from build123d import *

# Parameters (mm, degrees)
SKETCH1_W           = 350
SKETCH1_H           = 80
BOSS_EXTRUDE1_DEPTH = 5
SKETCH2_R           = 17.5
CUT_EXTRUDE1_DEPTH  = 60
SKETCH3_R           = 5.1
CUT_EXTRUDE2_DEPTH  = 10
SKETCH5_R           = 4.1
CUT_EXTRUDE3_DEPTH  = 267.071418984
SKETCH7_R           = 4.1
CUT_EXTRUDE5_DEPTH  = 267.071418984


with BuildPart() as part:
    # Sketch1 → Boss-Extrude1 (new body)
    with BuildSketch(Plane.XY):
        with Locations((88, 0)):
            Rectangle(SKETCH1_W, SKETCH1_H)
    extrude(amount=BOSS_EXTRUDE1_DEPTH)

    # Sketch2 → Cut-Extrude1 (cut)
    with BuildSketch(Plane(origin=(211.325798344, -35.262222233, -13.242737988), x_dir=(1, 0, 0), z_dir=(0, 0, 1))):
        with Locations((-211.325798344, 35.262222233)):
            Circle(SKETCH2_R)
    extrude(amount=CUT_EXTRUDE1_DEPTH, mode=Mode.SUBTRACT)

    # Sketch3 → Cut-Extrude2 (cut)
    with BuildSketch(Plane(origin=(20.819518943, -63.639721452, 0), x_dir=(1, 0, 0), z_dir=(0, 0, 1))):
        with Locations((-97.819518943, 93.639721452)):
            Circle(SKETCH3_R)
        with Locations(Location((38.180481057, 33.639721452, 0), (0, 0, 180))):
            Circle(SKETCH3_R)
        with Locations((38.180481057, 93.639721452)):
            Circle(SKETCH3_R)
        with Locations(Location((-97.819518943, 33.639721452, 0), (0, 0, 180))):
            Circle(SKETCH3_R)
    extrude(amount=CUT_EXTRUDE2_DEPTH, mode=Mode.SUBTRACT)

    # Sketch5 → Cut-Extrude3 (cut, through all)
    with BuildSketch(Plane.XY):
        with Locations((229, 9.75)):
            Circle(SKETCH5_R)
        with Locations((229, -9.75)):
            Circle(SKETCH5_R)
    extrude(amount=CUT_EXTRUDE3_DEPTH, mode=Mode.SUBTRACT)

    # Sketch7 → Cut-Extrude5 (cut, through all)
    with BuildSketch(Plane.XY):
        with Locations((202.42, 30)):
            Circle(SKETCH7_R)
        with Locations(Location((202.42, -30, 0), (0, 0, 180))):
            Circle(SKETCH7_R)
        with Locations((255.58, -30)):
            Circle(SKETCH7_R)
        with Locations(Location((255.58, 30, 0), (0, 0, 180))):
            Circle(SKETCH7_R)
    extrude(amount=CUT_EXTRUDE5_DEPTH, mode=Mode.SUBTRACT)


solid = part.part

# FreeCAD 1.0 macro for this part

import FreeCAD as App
import Part
import Sketcher

V = App.Vector
Q = App.Units.Quantity

doc = App.newDocument("Part")
body = doc.addObject("PartDesign::Body", "Body")

sketch1 = body.newObject("Sketcher::SketchObject", "Sketch")
sketch1.AttachmentSupport = (doc.getObject("XY_Plane"), [""])
sketch1.MapMode = "FlatFace"
sketch1.addGeometry(Part.LineSegment(V(-87, 40, 0), V(-87, -40, 0)), False)
sketch1.addGeometry(Part.LineSegment(V(-87, -40, 0), V(263, -40, 0)), False)
sketch1.addGeometry(Part.LineSegment(V(263, -40, 0), V(263, 40, 0)), False)
sketch1.addGeometry(Part.LineSegment(V(263, 40, 0), V(-87, 40, 0)), False)
sketch1.addConstraint(Sketcher.Constraint("Coincident", 0, 2, 1, 1))
sketch1.addConstraint(Sketcher.Constraint("Coincident", 1, 2, 2, 1))
sketch1.addConstraint(Sketcher.Constraint("Coincident", 2, 2, 3, 1))
sketch1.addConstraint(Sketcher.Constraint("Coincident", 3, 2, 0, 1))
sketch1.addConstraint(Sketcher.Constraint("Vertical", 0))
sketch1.addConstraint(Sketcher.Constraint("Horizontal", 1))
sketch1.addConstraint(Sketcher.Constraint("Vertical", 2))
sketch1.addConstraint(Sketcher.Constraint("Horizontal", 3))
sketch1.addConstraint(Sketcher.Constraint("DistanceX", 1, 1, 1, 2, Q("350 mm")))
sketch1.addConstraint(Sketcher.Constraint("DistanceY", 0, 2, 0, 1, Q("80 mm")))
sketch1.addConstraint(Sketcher.Constraint("DistanceX", 0, 2, -1, 1, Q("87 mm")))
sketch1.addConstraint(Sketcher.Constraint("DistanceY", 0, 2, -1, 1, Q("40 mm")))
pad1 = body.newObject("PartDesign::Pad", "Pad")
pad1.Profile = sketch1
pad1.Length = 5

sketch2 = body.newObject("Sketcher::SketchObject", "Sketch001")
sketch2.AttachmentSupport = (doc.getObject("XY_Plane"), [""])
sketch2.MapMode = "FlatFace"
sketch2.AttachmentOffset = App.Placement(V(0, 0, -13.242738), App.Rotation())
sketch2.addGeometry(Part.Circle(V(0, 0, 0), V(0, 0, 1), 17.5), False)
sketch2.addConstraint(Sketcher.Constraint("Coincident", 0, 3, -1, 1))
sketch2.addConstraint(Sketcher.Constraint("Diameter", 0, Q("35 mm")))
pocket1 = body.newObject("PartDesign::Pocket", "Pocket")
pocket1.Profile = sketch2
pocket1.Length = 60
pocket1.Reversed = True

sketch3 = body.newObject("Sketcher::SketchObject", "Sketch002")
sketch3.AttachmentSupport = (doc.getObject("XY_Plane"), [""])
sketch3.MapMode = "FlatFace"
sketch3.addGeometry(Part.Circle(V(-77, 30, 0), V(0, 0, 1), 5.1), False)
sketch3.addGeometry(Part.Circle(V(59, -30, 0), V(0, 0, 1), 5.1), False)
sketch3.addGeometry(Part.Circle(V(59, 30, 0), V(0, 0, 1), 5.1), False)
sketch3.addGeometry(Part.Circle(V(-77, -30, 0), V(0, 0, 1), 5.1), False)
sketch3.addConstraint(Sketcher.Constraint("Equal", 0, 1))
sketch3.addConstraint(Sketcher.Constraint("Equal", 1, 2))
sketch3.addConstraint(Sketcher.Constraint("Equal", 2, 3))
sketch3.addConstraint(Sketcher.Constraint("Symmetric", 1, 3, 2, 3, -1))
sketch3.addConstraint(Sketcher.Constraint("Symmetric", 0, 3, 3, 3, -1))
sketch3.addConstraint(Sketcher.Constraint("Horizontal", 0, 3, 2, 3))
sketch3.addConstraint(Sketcher.Constraint("Diameter", 0, Q("10.2 mm")))
sketch3.addConstraint(Sketcher.Constraint("DistanceX", 0, 3, -1, 1, Q("77 mm")))
sketch3.addConstraint(Sketcher.Constraint("DistanceY", -1, 1, 0, 3, Q("30 mm")))
sketch3.addConstraint(Sketcher.Constraint("DistanceX", -1, 1, 1, 3, Q("59 mm")))
pocket2 = body.newObject("PartDesign::Pocket", "Pocket001")
pocket2.Profile = sketch3
pocket2.Length = 10
pocket2.Reversed = True

sketch4 = body.newObject("Sketcher::SketchObject", "Sketch003")
sketch4.AttachmentSupport = (doc.getObject("XY_Plane"), [""])
sketch4.MapMode = "FlatFace"
sketch4.addGeometry(Part.Circle(V(229, 9.75, 0), V(0, 0, 1), 4.1), False)
sketch4.addGeometry(Part.Circle(V(229, -9.75, 0), V(0, 0, 1), 4.1), False)
sketch4.addConstraint(Sketcher.Constraint("Equal", 0, 1))
sketch4.addConstraint(Sketcher.Constraint("Symmetric", 0, 3, 1, 3, -1))
sketch4.addConstraint(Sketcher.Constraint("Diameter", 0, Q("8.2 mm")))
sketch4.addConstraint(Sketcher.Constraint("DistanceX", -1, 1, 0, 3, Q("229 mm")))
sketch4.addConstraint(Sketcher.Constraint("DistanceY", 1, 3, 0, 3, Q("19.5 mm")))
pocket3 = body.newObject("PartDesign::Pocket", "Pocket002")
pocket3.Profile = sketch4
pocket3.Type = "ThroughAll"
pocket3.Reversed = True

sketch5 = body.newObject("Sketcher::SketchObject", "Sketch004")
sketch5.AttachmentSupport = (doc.getObject("XY_Plane"), [""])
sketch5.MapMode = "FlatFace"
sketch5.addGeometry(Part.Circle(V(202.42, 30, 0), V(0, 0, 1), 4.1), False)
sketch5.addGeometry(Part.Circle(V(202.42, -30, 0), V(0, 0, 1), 4.1), False)
sketch5.addGeometry(Part.Circle(V(255.58, -30, 0), V(0, 0, 1), 4.1), False)
sketch5.addGeometry(Part.Circle(V(255.58, 30, 0), V(0, 0, 1), 4.1), False)
sketch5.addConstraint(Sketcher.Constraint("Equal", 0, 1))
sketch5.addConstraint(Sketcher.Constraint("Equal", 1, 2))
sketch5.addConstraint(Sketcher.Constraint("Equal", 2, 3))
sketch5.addConstraint(Sketcher.Constraint("Symmetric", 0, 3, 1, 3, -1))
sketch5.addConstraint(Sketcher.Constraint("Symmetric", 2, 3, 3, 3, -1))
sketch5.addConstraint(Sketcher.Constraint("Horizontal", 1, 3, 2, 3))
sketch5.addConstraint(Sketcher.Constraint("Diameter", 0, Q("8.2 mm")))
sketch5.addConstraint(Sketcher.Constraint("DistanceY", -1, 1, 0, 3, Q("30 mm")))
sketch5.addConstraint(Sketcher.Constraint("DistanceX", -1, 1, 0, 3, Q("202.42 mm")))
sketch5.addConstraint(Sketcher.Constraint("DistanceX", -1, 1, 2, 3, Q("255.58 mm")))
pocket4 = body.newObject("PartDesign::Pocket", "Pocket003")
pocket4.Profile = sketch5
pocket4.Type = "ThroughAll"
pocket4.Reversed = True

doc.recompute()
